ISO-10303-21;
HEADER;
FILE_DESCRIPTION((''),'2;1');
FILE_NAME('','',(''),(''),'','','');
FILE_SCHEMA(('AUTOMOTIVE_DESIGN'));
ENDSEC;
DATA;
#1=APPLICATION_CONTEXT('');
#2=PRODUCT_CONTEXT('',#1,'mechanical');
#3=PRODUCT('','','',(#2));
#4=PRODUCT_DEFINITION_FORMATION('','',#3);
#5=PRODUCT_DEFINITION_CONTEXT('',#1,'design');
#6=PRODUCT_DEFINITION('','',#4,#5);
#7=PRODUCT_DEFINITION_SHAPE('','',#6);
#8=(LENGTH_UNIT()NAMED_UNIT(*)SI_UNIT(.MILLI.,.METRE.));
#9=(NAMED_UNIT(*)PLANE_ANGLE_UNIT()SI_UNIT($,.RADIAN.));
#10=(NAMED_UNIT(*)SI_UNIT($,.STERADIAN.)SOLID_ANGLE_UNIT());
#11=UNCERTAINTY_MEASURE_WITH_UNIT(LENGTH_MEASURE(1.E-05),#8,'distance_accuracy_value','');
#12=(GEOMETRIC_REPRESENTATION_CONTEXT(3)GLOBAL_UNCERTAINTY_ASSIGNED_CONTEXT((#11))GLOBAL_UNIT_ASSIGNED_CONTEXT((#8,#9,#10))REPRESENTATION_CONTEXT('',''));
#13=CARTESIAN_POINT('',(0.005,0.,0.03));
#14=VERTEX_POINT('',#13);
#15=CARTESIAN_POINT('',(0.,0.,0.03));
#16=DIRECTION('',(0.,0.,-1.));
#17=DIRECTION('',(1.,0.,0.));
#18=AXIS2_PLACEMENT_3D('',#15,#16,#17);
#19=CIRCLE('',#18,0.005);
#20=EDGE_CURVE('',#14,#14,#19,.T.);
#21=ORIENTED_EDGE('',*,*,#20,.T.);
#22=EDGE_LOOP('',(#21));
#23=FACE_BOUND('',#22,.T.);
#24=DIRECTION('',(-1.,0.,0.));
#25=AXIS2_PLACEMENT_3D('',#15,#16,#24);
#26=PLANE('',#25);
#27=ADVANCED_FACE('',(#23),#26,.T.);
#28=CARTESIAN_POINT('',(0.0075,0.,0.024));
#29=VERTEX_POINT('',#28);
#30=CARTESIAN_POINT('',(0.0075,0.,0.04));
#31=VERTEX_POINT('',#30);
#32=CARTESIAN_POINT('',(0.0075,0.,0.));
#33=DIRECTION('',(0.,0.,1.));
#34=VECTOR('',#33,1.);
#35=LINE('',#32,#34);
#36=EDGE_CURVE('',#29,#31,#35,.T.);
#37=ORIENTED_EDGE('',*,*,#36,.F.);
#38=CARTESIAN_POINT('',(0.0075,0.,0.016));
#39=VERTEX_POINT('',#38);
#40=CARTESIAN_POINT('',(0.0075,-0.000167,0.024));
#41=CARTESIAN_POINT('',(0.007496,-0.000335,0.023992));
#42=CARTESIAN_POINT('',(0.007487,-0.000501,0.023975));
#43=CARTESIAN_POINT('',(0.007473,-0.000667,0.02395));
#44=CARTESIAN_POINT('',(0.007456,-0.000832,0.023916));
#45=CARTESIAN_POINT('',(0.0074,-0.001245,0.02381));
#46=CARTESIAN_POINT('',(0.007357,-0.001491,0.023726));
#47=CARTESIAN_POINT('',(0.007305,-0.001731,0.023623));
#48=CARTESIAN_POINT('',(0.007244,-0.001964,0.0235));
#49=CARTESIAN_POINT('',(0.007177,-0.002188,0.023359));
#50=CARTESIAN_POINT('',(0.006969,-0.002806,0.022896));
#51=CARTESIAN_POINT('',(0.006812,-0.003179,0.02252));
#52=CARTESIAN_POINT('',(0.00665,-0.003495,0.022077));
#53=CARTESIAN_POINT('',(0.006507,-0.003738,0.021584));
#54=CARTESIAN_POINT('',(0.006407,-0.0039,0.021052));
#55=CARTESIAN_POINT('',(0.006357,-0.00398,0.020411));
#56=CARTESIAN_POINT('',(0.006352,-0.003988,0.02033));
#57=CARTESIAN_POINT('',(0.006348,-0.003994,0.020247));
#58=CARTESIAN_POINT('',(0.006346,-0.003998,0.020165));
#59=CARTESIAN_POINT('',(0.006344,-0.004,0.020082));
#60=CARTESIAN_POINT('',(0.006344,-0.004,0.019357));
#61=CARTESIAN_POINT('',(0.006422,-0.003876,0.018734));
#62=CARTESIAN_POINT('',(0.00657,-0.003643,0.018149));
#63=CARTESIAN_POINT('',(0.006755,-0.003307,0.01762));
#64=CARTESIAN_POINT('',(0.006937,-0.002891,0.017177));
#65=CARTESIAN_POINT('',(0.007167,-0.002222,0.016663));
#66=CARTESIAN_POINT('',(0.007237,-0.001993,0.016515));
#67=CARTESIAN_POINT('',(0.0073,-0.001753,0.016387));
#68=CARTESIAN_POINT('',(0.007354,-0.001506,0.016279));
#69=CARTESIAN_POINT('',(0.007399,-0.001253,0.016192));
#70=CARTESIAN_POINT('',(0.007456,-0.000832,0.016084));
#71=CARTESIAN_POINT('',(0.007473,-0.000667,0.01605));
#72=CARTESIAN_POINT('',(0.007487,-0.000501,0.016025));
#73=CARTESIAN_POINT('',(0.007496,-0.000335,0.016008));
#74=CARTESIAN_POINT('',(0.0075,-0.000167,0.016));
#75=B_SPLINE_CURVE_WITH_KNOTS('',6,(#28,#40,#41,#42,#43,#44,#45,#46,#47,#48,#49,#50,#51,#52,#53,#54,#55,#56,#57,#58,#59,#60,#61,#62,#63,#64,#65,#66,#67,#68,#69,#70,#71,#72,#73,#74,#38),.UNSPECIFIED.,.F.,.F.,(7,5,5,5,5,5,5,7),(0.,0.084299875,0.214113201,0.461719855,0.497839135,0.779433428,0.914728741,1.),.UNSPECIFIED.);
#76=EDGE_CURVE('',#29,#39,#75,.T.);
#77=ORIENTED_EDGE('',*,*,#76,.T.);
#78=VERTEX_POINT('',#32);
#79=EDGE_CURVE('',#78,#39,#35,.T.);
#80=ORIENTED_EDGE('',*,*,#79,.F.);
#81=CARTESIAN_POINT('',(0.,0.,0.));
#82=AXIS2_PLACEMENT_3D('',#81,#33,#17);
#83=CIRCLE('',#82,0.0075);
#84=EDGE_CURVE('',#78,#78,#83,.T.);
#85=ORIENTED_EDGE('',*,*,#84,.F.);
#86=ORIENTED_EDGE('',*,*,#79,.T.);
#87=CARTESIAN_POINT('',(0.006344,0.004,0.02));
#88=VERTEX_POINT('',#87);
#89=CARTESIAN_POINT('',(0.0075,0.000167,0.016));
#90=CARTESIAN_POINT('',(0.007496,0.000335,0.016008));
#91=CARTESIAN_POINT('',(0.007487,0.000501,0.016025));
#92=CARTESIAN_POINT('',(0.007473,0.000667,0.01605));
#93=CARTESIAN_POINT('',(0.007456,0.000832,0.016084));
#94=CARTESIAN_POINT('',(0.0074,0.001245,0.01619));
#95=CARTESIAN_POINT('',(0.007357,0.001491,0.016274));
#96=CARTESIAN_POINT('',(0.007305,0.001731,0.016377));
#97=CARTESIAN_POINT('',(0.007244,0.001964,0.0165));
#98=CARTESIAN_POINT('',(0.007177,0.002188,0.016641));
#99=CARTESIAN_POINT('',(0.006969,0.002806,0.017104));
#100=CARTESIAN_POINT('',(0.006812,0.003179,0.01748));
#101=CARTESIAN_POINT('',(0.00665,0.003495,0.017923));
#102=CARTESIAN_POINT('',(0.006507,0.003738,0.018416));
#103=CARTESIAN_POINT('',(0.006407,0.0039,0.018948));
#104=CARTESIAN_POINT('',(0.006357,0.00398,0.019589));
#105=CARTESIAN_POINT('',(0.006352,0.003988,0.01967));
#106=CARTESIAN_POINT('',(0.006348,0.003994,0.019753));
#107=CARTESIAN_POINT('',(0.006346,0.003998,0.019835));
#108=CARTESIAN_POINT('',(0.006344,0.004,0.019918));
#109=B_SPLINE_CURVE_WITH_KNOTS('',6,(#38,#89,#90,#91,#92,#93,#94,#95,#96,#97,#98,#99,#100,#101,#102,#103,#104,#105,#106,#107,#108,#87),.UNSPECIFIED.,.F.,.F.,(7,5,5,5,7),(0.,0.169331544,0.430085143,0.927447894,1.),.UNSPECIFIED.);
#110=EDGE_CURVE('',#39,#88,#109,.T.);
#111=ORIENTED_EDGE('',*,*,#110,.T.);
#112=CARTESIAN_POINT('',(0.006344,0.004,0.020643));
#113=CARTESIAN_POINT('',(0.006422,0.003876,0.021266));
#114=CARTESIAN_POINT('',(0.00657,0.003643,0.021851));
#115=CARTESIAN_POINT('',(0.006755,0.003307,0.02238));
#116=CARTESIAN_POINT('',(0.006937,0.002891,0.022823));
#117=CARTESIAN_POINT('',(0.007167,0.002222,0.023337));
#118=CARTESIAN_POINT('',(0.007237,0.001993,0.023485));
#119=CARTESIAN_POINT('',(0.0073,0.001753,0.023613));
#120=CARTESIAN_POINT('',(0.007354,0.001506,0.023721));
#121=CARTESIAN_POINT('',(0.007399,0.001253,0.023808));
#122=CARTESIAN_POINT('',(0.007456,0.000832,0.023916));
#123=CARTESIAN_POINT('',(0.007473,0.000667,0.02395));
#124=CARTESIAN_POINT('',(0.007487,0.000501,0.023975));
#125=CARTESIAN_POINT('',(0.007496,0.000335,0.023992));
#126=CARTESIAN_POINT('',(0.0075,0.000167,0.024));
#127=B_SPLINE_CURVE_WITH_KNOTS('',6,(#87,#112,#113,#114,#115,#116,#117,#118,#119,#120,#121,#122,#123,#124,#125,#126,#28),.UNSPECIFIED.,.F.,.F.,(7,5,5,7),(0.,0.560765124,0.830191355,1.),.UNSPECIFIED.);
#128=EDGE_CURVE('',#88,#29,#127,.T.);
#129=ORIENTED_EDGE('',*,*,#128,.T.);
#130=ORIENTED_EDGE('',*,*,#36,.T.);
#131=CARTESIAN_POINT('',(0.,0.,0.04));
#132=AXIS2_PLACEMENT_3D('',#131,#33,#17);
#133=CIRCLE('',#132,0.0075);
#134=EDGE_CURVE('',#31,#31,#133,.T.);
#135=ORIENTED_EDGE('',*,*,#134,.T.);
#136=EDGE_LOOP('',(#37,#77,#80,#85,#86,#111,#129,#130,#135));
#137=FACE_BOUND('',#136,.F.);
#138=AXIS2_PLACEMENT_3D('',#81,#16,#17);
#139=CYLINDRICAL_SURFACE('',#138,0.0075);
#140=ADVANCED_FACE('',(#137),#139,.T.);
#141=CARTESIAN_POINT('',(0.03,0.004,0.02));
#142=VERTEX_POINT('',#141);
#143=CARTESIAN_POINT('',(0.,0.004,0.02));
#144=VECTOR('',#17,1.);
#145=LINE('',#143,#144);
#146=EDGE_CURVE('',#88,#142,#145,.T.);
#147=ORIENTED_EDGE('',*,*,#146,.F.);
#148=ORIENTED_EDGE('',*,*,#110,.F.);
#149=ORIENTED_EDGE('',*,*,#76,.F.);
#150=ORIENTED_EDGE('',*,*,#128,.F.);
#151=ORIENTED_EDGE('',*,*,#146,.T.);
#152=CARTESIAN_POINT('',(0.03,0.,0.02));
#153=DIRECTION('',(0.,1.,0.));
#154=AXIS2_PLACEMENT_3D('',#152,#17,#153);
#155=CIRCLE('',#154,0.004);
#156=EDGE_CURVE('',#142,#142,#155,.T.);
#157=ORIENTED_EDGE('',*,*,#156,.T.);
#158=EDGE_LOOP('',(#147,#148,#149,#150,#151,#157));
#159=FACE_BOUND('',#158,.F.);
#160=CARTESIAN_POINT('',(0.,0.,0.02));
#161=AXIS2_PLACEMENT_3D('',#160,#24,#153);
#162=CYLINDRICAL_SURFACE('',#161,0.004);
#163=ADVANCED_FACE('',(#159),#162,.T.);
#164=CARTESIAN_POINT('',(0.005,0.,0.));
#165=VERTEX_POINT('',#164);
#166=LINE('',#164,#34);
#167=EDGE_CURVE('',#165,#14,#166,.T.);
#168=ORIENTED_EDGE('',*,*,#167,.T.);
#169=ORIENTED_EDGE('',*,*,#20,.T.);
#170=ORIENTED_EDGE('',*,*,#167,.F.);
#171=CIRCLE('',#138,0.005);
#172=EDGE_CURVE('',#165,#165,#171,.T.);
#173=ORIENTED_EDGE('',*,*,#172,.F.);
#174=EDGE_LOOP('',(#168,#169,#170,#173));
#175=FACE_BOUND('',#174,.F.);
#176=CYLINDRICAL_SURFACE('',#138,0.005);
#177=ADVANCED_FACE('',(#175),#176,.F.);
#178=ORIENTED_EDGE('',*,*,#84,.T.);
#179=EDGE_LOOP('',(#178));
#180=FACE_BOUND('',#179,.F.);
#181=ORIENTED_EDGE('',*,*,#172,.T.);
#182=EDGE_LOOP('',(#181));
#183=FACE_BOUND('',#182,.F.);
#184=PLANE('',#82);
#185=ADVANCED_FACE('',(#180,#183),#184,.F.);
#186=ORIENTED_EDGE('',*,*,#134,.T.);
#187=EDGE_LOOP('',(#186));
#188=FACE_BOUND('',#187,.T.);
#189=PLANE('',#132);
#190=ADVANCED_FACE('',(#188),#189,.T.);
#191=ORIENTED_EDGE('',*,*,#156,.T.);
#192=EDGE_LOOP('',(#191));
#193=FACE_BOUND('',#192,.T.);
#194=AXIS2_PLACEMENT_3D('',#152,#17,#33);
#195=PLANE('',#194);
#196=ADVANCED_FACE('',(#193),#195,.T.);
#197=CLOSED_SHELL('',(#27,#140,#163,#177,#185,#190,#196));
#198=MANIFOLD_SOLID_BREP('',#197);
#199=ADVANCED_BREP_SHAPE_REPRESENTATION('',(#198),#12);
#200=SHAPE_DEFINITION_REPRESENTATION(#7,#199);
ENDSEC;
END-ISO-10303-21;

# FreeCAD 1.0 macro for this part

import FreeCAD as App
import Part
import Sketcher

doc = App.newDocument("Part")
params = doc.addObject("Spreadsheet::Sheet", "Params")
for row, (alias, value) in enumerate([
    ("pad1_length", "0.04 mm"),
    ("pad2_length", "0.03 mm"),
    ("sketch3_diameter", "0.01 mm"),
    ("pocket1_length", "0.03 mm"),
], start=1):
    params.set(f"A{row}", alias)
    params.set(f"B{row}", "=" + value)
    params.setAlias(f"B{row}", alias)

body = doc.addObject("PartDesign::Body", "Body")

sketch1 = body.newObject("Sketcher::SketchObject", "Sketch")
sketch1.AttachmentSupport = (doc.getObject("XY_Plane"), [""])
sketch1.MapMode = "FlatFace"
sketch1.addGeometry(Part.Circle(App.Vector(0, 0, 0), App.Vector(0, 0, 1), 0.007), False)
sketch1.addConstraint(Sketcher.Constraint("Coincident", 0, 3, -1, 1))
sketch1.addConstraint(Sketcher.Constraint("Diameter", 0, 0.015))
pad1 = body.newObject("PartDesign::Pad", "Pad")
pad1.Profile = sketch1
pad1.setExpression("Length", "Params.pad1_length")

sketch2 = body.newObject("Sketcher::SketchObject", "Sketch001")
sketch2.AttachmentSupport = (doc.getObject("YZ_Plane"), [""])
sketch2.MapMode = "FlatFace"
sketch2.addGeometry(Part.Circle(App.Vector(0, 0.02, 0), App.Vector(0, 0, 1), 0.004), False)
sketch2.addConstraint(Sketcher.Constraint("PointOnObject", 0, 3, -2))
sketch2.addConstraint(Sketcher.Constraint("Diameter", 0, 0.008))
sketch2.addConstraint(Sketcher.Constraint("DistanceY", -1, 1, 0, 3, 0.02))
pad2 = body.newObject("PartDesign::Pad", "Pad001")
pad2.Profile = sketch2
pad2.setExpression("Length", "Params.pad2_length")

sketch3 = body.newObject("Sketcher::SketchObject", "Sketch002")
sketch3.AttachmentSupport = (doc.getObject("XY_Plane"), [""])
sketch3.MapMode = "FlatFace"
sketch3.addGeometry(Part.Circle(App.Vector(0, 0, 0), App.Vector(0, 0, 1), 0.005), False)
sketch3.addConstraint(Sketcher.Constraint("Coincident", 0, 3, -1, 1))
sketch3.addConstraint(Sketcher.Constraint("Diameter", 0, 0.01))
sketch3.setExpression("Constraints[1]", "Params.sketch3_diameter")
pocket1 = body.newObject("PartDesign::Pocket", "Pocket")
pocket1.Profile = sketch3
pocket1.setExpression("Length", "Params.pocket1_length")
pocket1.Reversed = True

doc.recompute()
